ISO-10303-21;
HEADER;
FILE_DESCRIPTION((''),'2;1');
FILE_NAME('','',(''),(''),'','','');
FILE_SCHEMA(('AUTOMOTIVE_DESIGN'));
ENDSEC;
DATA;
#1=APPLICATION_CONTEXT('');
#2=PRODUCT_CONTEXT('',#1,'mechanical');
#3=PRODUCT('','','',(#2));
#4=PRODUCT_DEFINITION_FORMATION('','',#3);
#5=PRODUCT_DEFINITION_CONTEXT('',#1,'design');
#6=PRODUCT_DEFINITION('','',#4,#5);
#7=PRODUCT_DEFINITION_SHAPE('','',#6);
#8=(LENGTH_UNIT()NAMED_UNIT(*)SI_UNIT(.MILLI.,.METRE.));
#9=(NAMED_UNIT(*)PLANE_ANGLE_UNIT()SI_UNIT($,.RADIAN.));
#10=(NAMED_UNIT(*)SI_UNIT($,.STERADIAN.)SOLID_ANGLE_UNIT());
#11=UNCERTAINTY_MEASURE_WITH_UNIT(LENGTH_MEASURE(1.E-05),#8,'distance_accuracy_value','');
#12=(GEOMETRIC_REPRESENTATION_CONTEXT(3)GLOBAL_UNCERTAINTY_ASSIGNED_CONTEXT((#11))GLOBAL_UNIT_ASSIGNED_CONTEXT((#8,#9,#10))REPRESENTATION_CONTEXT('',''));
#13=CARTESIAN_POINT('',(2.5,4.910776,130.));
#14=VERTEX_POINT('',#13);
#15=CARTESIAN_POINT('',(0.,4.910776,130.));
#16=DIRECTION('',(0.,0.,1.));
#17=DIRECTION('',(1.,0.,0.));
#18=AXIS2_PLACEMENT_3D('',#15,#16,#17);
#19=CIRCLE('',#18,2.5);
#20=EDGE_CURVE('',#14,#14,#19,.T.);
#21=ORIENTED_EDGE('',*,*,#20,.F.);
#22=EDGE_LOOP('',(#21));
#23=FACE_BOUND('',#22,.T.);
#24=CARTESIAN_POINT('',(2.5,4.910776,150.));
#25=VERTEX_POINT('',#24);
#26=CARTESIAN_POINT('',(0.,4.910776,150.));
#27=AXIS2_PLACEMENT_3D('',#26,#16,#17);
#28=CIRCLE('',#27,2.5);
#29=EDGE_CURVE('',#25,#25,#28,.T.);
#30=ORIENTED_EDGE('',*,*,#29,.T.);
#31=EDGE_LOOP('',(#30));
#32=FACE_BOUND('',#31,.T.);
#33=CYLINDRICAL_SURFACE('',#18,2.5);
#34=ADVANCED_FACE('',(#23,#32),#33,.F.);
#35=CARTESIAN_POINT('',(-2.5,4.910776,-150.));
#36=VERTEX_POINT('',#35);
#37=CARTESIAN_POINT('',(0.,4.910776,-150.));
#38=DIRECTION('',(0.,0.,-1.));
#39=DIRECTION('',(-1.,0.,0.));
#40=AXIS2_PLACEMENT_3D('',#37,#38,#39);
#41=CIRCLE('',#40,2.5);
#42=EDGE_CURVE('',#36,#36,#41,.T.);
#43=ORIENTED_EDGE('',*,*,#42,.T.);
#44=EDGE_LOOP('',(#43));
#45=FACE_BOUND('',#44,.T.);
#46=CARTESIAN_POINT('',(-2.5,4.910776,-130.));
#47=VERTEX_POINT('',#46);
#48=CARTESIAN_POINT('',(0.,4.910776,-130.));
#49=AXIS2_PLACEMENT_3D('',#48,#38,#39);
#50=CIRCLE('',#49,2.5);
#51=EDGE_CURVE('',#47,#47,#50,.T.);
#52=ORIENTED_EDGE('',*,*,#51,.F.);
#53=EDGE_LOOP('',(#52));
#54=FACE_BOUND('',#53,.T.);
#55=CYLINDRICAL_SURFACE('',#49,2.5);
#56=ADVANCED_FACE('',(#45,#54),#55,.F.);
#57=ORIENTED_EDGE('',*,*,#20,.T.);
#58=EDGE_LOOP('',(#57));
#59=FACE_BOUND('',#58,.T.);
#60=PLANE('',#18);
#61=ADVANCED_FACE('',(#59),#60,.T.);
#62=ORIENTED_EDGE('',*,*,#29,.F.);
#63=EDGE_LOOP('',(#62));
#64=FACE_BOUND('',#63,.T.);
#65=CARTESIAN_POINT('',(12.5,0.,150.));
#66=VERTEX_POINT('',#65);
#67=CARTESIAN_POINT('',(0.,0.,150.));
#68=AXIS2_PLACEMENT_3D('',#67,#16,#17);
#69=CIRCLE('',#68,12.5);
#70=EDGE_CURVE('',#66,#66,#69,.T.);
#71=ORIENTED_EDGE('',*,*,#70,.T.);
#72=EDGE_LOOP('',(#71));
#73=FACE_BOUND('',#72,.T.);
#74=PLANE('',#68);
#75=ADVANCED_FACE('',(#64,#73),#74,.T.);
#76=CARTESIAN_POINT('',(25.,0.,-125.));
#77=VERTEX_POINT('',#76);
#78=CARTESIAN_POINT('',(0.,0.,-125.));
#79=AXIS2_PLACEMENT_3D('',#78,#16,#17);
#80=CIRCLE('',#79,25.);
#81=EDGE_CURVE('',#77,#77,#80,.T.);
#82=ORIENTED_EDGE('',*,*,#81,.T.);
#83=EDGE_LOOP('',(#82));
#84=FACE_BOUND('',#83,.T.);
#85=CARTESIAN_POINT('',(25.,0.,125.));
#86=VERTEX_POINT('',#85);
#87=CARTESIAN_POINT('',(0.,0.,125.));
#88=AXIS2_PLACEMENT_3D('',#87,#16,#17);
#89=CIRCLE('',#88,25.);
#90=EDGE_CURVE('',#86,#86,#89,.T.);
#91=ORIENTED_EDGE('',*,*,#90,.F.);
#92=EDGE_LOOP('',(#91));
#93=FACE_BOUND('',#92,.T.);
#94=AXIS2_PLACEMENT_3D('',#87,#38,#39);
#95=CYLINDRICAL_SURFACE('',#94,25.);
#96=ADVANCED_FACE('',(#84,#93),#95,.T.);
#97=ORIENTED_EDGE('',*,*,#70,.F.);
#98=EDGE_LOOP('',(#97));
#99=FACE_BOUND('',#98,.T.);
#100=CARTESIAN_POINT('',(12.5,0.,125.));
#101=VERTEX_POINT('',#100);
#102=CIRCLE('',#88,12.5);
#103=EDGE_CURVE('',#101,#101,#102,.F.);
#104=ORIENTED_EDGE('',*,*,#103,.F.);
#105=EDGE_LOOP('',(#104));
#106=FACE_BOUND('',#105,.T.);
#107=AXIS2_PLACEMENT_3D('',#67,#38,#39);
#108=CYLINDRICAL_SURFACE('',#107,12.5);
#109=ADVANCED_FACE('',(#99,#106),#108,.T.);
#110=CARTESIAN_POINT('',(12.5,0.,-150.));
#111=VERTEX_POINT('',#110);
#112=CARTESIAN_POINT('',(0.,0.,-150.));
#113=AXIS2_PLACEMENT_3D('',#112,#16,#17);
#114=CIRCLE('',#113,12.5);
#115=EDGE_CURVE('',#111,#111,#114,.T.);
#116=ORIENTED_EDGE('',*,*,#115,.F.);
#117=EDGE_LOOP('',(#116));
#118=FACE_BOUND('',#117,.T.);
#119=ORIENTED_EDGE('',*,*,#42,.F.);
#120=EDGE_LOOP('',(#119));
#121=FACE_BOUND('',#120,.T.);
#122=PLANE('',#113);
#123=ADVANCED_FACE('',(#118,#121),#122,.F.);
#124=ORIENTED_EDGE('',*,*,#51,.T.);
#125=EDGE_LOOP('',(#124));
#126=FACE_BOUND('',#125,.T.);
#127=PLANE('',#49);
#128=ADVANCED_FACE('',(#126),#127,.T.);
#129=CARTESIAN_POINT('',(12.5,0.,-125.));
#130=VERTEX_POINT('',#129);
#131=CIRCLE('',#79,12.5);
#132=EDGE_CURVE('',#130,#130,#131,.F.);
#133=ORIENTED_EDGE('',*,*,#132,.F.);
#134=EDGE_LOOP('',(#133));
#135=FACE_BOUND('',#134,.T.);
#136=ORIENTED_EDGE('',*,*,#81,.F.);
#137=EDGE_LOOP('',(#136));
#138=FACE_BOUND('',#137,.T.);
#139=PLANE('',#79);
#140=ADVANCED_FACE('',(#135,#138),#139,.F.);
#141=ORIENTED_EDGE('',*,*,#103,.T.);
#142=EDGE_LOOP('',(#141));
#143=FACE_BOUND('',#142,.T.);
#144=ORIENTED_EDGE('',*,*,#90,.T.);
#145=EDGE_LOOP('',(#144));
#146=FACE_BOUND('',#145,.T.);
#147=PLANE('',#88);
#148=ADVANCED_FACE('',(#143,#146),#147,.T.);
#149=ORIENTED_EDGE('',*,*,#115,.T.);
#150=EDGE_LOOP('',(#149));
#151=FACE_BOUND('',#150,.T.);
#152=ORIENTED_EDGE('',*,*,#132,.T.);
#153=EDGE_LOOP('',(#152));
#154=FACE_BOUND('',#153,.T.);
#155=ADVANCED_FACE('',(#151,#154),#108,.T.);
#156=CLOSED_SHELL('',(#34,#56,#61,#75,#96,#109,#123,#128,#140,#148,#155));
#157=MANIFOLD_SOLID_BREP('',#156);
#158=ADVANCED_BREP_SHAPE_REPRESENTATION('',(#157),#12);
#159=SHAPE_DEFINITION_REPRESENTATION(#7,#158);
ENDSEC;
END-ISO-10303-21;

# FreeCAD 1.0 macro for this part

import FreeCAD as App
import Part
import Sketcher

doc = App.newDocument("Part")
body = doc.addObject("PartDesign::Body", "Body")

# Sketch on XY plane
sketch1 = body.newObject("Sketcher::SketchObject", "Sketch")
sketch1.AttachmentSupport = (doc.getObject("XY_Plane"), [""])
sketch1.MapMode = "FlatFace"
sketch1.addGeometry(Part.Circle(App.Vector(0, 0, 0), App.Vector(0, 0, 1), 25), False)
sketch1.addConstraint([
    Sketcher.Constraint("Coincident", 0, 3, -1, 1),
    Sketcher.Constraint("Diameter", 0, 50.0),
])
pad1 = body.newObject("PartDesign::Pad", "Pad")
pad1.Profile = sketch1
pad1.Length = 250
pad1.Midplane = True

# Sketch on XY plane
sketch2 = body.newObject("Sketcher::SketchObject", "Sketch001")
sketch2.AttachmentSupport = (doc.getObject("XY_Plane"), [""])
sketch2.MapMode = "FlatFace"
sketch2.addGeometry(Part.Circle(App.Vector(0, 0, 0), App.Vector(0, 0, 1), 12), False)
sketch2.addConstraint([
    Sketcher.Constraint("Coincident", 0, 3, -1, 1),
    Sketcher.Constraint("Diameter", 0, 25.0),
])
pad2 = body.newObject("PartDesign::Pad", "Pad001")
pad2.Profile = sketch2
pad2.Length = 300
pad2.Midplane = True

# Sketch on XY plane
sketch3 = body.newObject("Sketcher::SketchObject", "Sketch002")
sketch3.AttachmentSupport = (doc.getObject("XY_Plane"), [""])
sketch3.MapMode = "FlatFace"
sketch3.AttachmentOffset = App.Placement(App.Vector(0, 0, -150), App.Rotation())
sketch3.addGeometry(Part.Circle(App.Vector(0, 4.9, 0), App.Vector(0, 0, 1), 2.5), False)
sketch3.addConstraint([
    Sketcher.Constraint("PointOnObject", 0, 3, -2),
    Sketcher.Constraint("Diameter", 0, 5.0),
    Sketcher.Constraint("DistanceY", -1, 1, 0, 3, 4.910776),
])
pocket1 = body.newObject("PartDesign::Pocket", "Pocket")
pocket1.Profile = sketch3
pocket1.Length = 20
pocket1.Reversed = True

# Sketch on XY plane
sketch4 = body.newObject("Sketcher::SketchObject", "Sketch003")
sketch4.AttachmentSupport = (doc.getObject("XY_Plane"), [""])
sketch4.MapMode = "FlatFace"
sketch4.AttachmentOffset = App.Placement(App.Vector(0, 0, 150), App.Rotation())
sketch4.addGeometry(Part.Circle(App.Vector(0, 4.9, 0), App.Vector(0, 0, 1), 2.5), False)
sketch4.addConstraint([
    Sketcher.Constraint("PointOnObject", 0, 3, -2),
    Sketcher.Constraint("Diameter", 0, 5.0),
    Sketcher.Constraint("DistanceY", -1, 1, 0, 3, 4.910776),
])
pocket2 = body.newObject("PartDesign::Pocket", "Pocket001")
pocket2.Profile = sketch4
pocket2.Length = 20

doc.recompute()
